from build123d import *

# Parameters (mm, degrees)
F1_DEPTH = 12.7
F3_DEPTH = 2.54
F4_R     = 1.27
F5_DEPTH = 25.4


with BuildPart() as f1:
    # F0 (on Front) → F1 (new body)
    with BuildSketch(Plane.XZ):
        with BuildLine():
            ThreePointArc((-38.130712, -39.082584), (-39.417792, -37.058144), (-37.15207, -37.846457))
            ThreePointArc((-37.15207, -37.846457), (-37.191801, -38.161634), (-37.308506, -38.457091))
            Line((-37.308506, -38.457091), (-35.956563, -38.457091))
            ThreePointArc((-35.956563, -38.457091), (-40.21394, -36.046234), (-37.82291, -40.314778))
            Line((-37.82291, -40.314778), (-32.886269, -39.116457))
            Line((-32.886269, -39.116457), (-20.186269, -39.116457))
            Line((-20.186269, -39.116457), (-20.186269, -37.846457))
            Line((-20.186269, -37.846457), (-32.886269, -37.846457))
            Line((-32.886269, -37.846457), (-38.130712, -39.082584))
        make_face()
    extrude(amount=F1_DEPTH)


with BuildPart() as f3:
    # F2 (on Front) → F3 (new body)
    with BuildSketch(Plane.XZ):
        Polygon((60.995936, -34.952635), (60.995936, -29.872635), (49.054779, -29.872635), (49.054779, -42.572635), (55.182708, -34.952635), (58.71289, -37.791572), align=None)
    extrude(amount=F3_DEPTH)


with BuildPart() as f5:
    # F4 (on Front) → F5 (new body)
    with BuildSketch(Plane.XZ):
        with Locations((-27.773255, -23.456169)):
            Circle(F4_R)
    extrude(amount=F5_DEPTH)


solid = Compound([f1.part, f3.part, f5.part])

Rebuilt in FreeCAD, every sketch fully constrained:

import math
import FreeCAD as App
import Part
import Sketcher
from FreeCAD import Vector
Q = App.Units.Quantity

doc = App.newDocument("Part")
body = doc.addObject("PartDesign::Body", "Body")

# Sketch on XZ plane
sketch1 = doc.addObject("Sketcher::SketchObject", "Sketch")
body.addObject(sketch1)
sketch1.AttachmentSupport = (doc.XZ_Plane, [""])
sketch1.MapMode = "FlatFace"
sketch1.addGeometry(Part.ArcOfCircle(Part.Circle(Vector(-38.42207, -37.846457, 0), Vector(0, 0, 1), 1.27), math.radians(-0.000006), math.radians(283.262673)), False)
sketch1.addGeometry(Part.ArcOfCircle(Part.Circle(Vector(-38.422082, -37.846453, 0), Vector(0, 0, 1), 1.270012), math.radians(-28.738512), math.radians(-0.000184)), False)
sketch1.addGeometry(Part.LineSegment(Vector(-37.308506, -38.457091, 0), Vector(-35.956563, -38.457091, 0)), False)
sketch1.addGeometry(Part.ArcOfCircle(Part.Circle(Vector(-38.42207, -37.846457, 0), Vector(0, 0, 1), 2.54), math.radians(-13.910561), math.radians(283.644087)), False)
sketch1.addGeometry(Part.LineSegment(Vector(-37.82291, -40.314778, 0), Vector(-32.886269, -39.116457, 0)), False)
sketch1.addGeometry(Part.LineSegment(Vector(-32.886269, -39.116457, 0), Vector(-20.186269, -39.116457, 0)), False)
sketch1.addGeometry(Part.LineSegment(Vector(-20.186269, -39.116457, 0), Vector(-20.186269, -37.846457, 0)), False)
sketch1.addGeometry(Part.LineSegment(Vector(-20.186269, -37.846457, 0), Vector(-32.886269, -37.846457, 0)), False)
sketch1.addGeometry(Part.LineSegment(Vector(-32.886269, -37.846457, 0), Vector(-38.130712, -39.082584, 0)), False)
sketch1.addConstraint(Sketcher.Constraint("Coincident", 0, 1, 1, 2))
sketch1.addConstraint(Sketcher.Constraint("Coincident", 1, 1, 2, 1))
sketch1.addConstraint(Sketcher.Constraint("Coincident", 2, 2, 3, 1))
sketch1.addConstraint(Sketcher.Constraint("Tangent", 3, 2, 4, 1))
sketch1.addConstraint(Sketcher.Constraint("Coincident", 4, 2, 5, 1))
sketch1.addConstraint(Sketcher.Constraint("Coincident", 5, 2, 6, 1))
sketch1.addConstraint(Sketcher.Constraint("Coincident", 6, 2, 7, 1))
sketch1.addConstraint(Sketcher.Constraint("Coincident", 7, 2, 8, 1))
sketch1.addConstraint(Sketcher.Constraint("Tangent", 8, 2, 0, 2))
sketch1.addConstraint(Sketcher.Constraint("Horizontal", 2))
sketch1.addConstraint(Sketcher.Constraint("Horizontal", 5))
sketch1.addConstraint(Sketcher.Constraint("Vertical", 6))
sketch1.addConstraint(Sketcher.Constraint("Horizontal", 7))
sketch1.addConstraint(Sketcher.Constraint("Coincident", 3, 3, 0, 3))
sketch1.addConstraint(Sketcher.Constraint("Horizontal", 3, 3, 0, 1))
sketch1.addConstraint(Sketcher.Constraint("Horizontal", 0, 1, 6, 2))
sketch1.addConstraint(Sketcher.Constraint("Vertical", 4, 2, 7, 2))
sketch1.addConstraint(Sketcher.Constraint("Radius", 3, Q("0.1 in")))
sketch1.addConstraint(Sketcher.Constraint("Radius", 0, Q("0.05 in")))
sketch1.addConstraint(Sketcher.Constraint("DistanceX", 5, 1, 5, 2, Q("0.5 in")))
sketch1.addConstraint(Sketcher.Constraint("Distance", 4, Q("0.2 in")))
sketch1.addConstraint(Sketcher.Constraint("DistanceY", 6, 1, 6, 2, Q("0.05 in")))
sketch1.addConstraint(Sketcher.Constraint("Radius", 1, Q("1.270012 mm")))
sketch1.addConstraint(Sketcher.Constraint("DistanceX", 2, 1, 2, 2, Q("1.351943 mm")))
sketch1.addConstraint(Sketcher.Constraint("DistanceX", 0, 3, -1, 1, Q("38.42207 mm")))
sketch1.addConstraint(Sketcher.Constraint("DistanceY", 1, 1, -1, 1, Q("38.457091 mm")))
sketch1.addConstraint(Sketcher.Constraint("DistanceY", 1, 1, 1, 3, Q("0.610638 mm")))
pad1 = doc.addObject("PartDesign::Pad", "Pad")
body.addObject(pad1)
pad1.Profile = sketch1
pad1.Length = Q("0.5 in")
body2 = doc.addObject("PartDesign::Body", "Body001")

# Sketch on XZ plane
sketch2 = doc.addObject("Sketcher::SketchObject", "Sketch001")
body2.addObject(sketch2)
sketch2.AttachmentSupport = (doc.getObject("XZ_Plane001"), [""])
sketch2.MapMode = "FlatFace"
sketch2.addGeometry(Part.LineSegment(Vector(60.995936, -34.952635, 0), Vector(60.995936, -29.872635, 0)), False)
sketch2.addGeometry(Part.LineSegment(Vector(60.995936, -29.872635, 0), Vector(49.054779, -29.872635, 0)), False)
sketch2.addGeometry(Part.LineSegment(Vector(49.054779, -29.872635, 0), Vector(49.054779, -42.572635, 0)), False)
sketch2.addGeometry(Part.LineSegment(Vector(49.054779, -42.572635, 0), Vector(55.182708, -34.952635, 0)), False)
sketch2.addGeometry(Part.LineSegment(Vector(55.182708, -34.952635, 0), Vector(58.71289, -37.791572, 0)), False)
sketch2.addGeometry(Part.LineSegment(Vector(58.71289, -37.791572, 0), Vector(60.995936, -34.952635, 0)), False)
sketch2.addConstraint(Sketcher.Constraint("Coincident", 0, 2, 1, 1))
sketch2.addConstraint(Sketcher.Constraint("Coincident", 1, 2, 2, 1))
sketch2.addConstraint(Sketcher.Constraint("Coincident", 2, 2, 3, 1))
sketch2.addConstraint(Sketcher.Constraint("Coincident", 3, 2, 4, 1))
sketch2.addConstraint(Sketcher.Constraint("Coincident", 4, 2, 5, 1))
sketch2.addConstraint(Sketcher.Constraint("Coincident", 5, 2, 0, 1))
sketch2.addConstraint(Sketcher.Constraint("Vertical", 0))
sketch2.addConstraint(Sketcher.Constraint("Horizontal", 1))
sketch2.addConstraint(Sketcher.Constraint("Vertical", 2))
sketch2.addConstraint(Sketcher.Constraint("Perpendicular", 3, 4))
sketch2.addConstraint(Sketcher.Constraint("Perpendicular", 4, 5))
sketch2.addConstraint(Sketcher.Constraint("Horizontal", 3, 2, 5, 2))
sketch2.addConstraint(Sketcher.Constraint("DistanceY", 0, 1, 0, 2, Q("0.2 in")))
sketch2.addConstraint(Sketcher.Constraint("DistanceY", 2, 2, 2, 1, Q("0.5 in")))
sketch2.addConstraint(Sketcher.Constraint("Distance", 3, Q("9.778339 mm")))
sketch2.addConstraint(Sketcher.Constraint("DistanceX", 1, 2, 1, 1, Q("11.941157 mm")))
sketch2.addConstraint(Sketcher.Constraint("DistanceX", -1, 1, 1, 2, Q("49.054779 mm")))
sketch2.addConstraint(Sketcher.Constraint("DistanceY", 0, 2, -1, 1, Q("29.872635 mm")))
pad2 = doc.addObject("PartDesign::Pad", "Pad001")
body2.addObject(pad2)
pad2.Profile = sketch2
pad2.Length = Q("0.1 in")
body3 = doc.addObject("PartDesign::Body", "Body002")

# Sketch on XZ plane
sketch3 = doc.addObject("Sketcher::SketchObject", "Sketch002")
body3.addObject(sketch3)
sketch3.AttachmentSupport = (doc.getObject("XZ_Plane002"), [""])
sketch3.MapMode = "FlatFace"
sketch3.addGeometry(Part.Circle(Vector(-27.773255, -23.456169, 0), Vector(0, 0, 1), 1.27), False)
sketch3.addConstraint(Sketcher.Constraint("Diameter", 0, Q("0.1 in")))
sketch3.addConstraint(Sketcher.Constraint("DistanceY", 0, 3, -1, 1, Q("23.456169 mm")))
sketch3.addConstraint(Sketcher.Constraint("DistanceX", 0, 3, -1, 1, Q("27.773255 mm")))
pad3 = doc.addObject("PartDesign::Pad", "Pad002")
body3.addObject(pad3)
pad3.Profile = sketch3
pad3.Length = Q("1 in")

doc.recompute()
